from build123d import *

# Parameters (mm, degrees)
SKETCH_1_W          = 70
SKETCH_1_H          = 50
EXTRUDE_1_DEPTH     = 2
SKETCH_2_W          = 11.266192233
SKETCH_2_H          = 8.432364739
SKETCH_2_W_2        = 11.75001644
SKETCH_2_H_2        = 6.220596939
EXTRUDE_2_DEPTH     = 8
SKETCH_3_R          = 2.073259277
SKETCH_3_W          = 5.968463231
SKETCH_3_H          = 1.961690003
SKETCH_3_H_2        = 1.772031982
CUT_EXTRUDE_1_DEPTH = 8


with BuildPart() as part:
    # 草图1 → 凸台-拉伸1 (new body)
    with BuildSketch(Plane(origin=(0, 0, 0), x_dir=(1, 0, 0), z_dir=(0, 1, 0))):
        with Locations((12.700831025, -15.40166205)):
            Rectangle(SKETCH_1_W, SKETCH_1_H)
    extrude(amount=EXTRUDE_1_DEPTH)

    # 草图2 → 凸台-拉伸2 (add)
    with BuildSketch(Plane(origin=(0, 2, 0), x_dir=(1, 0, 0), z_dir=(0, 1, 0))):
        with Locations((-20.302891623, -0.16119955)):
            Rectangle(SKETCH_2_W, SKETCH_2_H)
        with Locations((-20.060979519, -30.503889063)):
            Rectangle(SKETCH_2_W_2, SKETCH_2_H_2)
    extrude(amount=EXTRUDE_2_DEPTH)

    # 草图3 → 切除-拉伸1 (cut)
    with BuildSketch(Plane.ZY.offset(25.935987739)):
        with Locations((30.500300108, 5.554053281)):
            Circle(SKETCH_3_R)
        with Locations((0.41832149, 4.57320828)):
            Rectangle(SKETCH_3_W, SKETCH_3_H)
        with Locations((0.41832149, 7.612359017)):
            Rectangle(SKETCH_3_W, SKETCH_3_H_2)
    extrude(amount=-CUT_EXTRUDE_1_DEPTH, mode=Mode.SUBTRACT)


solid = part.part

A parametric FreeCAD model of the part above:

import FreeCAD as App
import Part
import Sketcher

doc = App.newDocument("Part")
body = doc.addObject("PartDesign::Body", "Body")

sketch1 = body.newObject("Sketcher::SketchObject", "Sketch")
sketch1.AttachmentSupport = (doc.getObject("XZ_Plane"), [""])
sketch1.MapMode = "FlatFace"
sketch1.addGeometry(Part.LineSegment(App.Vector(-22, -10, 0), App.Vector(-22, 40, 0)), False)
sketch1.addGeometry(Part.LineSegment(App.Vector(-22, 40, 0), App.Vector(48, 40, 0)), False)
sketch1.addGeometry(Part.LineSegment(App.Vector(48, 40, 0), App.Vector(48, -10, 0)), False)
sketch1.addGeometry(Part.LineSegment(App.Vector(48, -10, 0), App.Vector(-22, -10, 0)), False)
sketch1.addConstraint(Sketcher.Constraint("Coincident", 0, 2, 1, 1))
sketch1.addConstraint(Sketcher.Constraint("Coincident", 1, 2, 2, 1))
sketch1.addConstraint(Sketcher.Constraint("Coincident", 2, 2, 3, 1))
sketch1.addConstraint(Sketcher.Constraint("Coincident", 3, 2, 0, 1))
sketch1.addConstraint(Sketcher.Constraint("Vertical", 0))
sketch1.addConstraint(Sketcher.Constraint("Horizontal", 1))
sketch1.addConstraint(Sketcher.Constraint("Vertical", 2))
sketch1.addConstraint(Sketcher.Constraint("Horizontal", 3))
sketch1.addConstraint(Sketcher.Constraint("DistanceX", 1, 1, 1, 2, 70.0))
sketch1.addConstraint(Sketcher.Constraint("DistanceY", 0, 1, 0, 2, 50.0))
sketch1.addConstraint(Sketcher.Constraint("DistanceX", 0, 2, -1, 1, 22.299169))
sketch1.addConstraint(Sketcher.Constraint("DistanceY", -1, 1, 0, 2, 40.401662))
pad1 = body.newObject("PartDesign::Pad", "Pad")
pad1.Profile = sketch1
pad1.Length = 2
pad1.Reversed = True

sketch2 = body.newObject("Sketcher::SketchObject", "Sketch001")
sketch2.AttachmentSupport = (doc.getObject("XZ_Plane"), [""])
sketch2.MapMode = "FlatFace"
sketch2.AttachmentOffset = App.Placement(App.Vector(0, 0, -2), App.Rotation())
sketch2.addGeometry(Part.LineSegment(App.Vector(-26, -4, 0), App.Vector(-26, 4, 0)), False)
sketch2.addGeometry(Part.LineSegment(App.Vector(-26, 4, 0), App.Vector(-15, 4, 0)), False)
sketch2.addGeometry(Part.LineSegment(App.Vector(-15, 4, 0), App.Vector(-15, -4, 0)), False)
sketch2.addGeometry(Part.LineSegment(App.Vector(-15, -4, 0), App.Vector(-26, -4, 0)), False)
sketch2.addGeometry(Part.LineSegment(App.Vector(-26, 27, 0), App.Vector(-26, 34, 0)), False)
sketch2.addGeometry(Part.LineSegment(App.Vector(-26, 34, 0), App.Vector(-14, 34, 0)), False)
sketch2.addGeometry(Part.LineSegment(App.Vector(-14, 34, 0), App.Vector(-14, 27, 0)), False)
sketch2.addGeometry(Part.LineSegment(App.Vector(-14, 27, 0), App.Vector(-26, 27, 0)), False)
sketch2.addConstraint(Sketcher.Constraint("Coincident", 0, 2, 1, 1))
sketch2.addConstraint(Sketcher.Constraint("Coincident", 1, 2, 2, 1))
sketch2.addConstraint(Sketcher.Constraint("Coincident", 2, 2, 3, 1))
sketch2.addConstraint(Sketcher.Constraint("Coincident", 3, 2, 0, 1))
sketch2.addConstraint(Sketcher.Constraint("Coincident", 4, 2, 5, 1))
sketch2.addConstraint(Sketcher.Constraint("Coincident", 5, 2, 6, 1))
sketch2.addConstraint(Sketcher.Constraint("Coincident", 6, 2, 7, 1))
sketch2.addConstraint(Sketcher.Constraint("Coincident", 7, 2, 4, 1))
sketch2.addConstraint(Sketcher.Constraint("Vertical", 0))
sketch2.addConstraint(Sketcher.Constraint("Horizontal", 1))
sketch2.addConstraint(Sketcher.Constraint("Vertical", 2))
sketch2.addConstraint(Sketcher.Constraint("Horizontal", 3))
sketch2.addConstraint(Sketcher.Constraint("Vertical", 4))
sketch2.addConstraint(Sketcher.Constraint("Horizontal", 5))
sketch2.addConstraint(Sketcher.Constraint("Vertical", 6))
sketch2.addConstraint(Sketcher.Constraint("Horizontal", 7))
sketch2.addConstraint(Sketcher.Constraint("Vertical", 3, 2, 4, 2))
sketch2.addConstraint(Sketcher.Constraint("DistanceX", 1, 1, 1, 2, 11.266192))
sketch2.addConstraint(Sketcher.Constraint("DistanceX", 5, 1, 5, 2, 11.750016))
sketch2.addConstraint(Sketcher.Constraint("DistanceY", 0, 1, 0, 2, 8.432365))
sketch2.addConstraint(Sketcher.Constraint("DistanceY", 4, 1, 4, 2, 6.220597))
sketch2.addConstraint(Sketcher.Constraint("DistanceY", -1, 1, 0, 2, 4.377382))
sketch2.addConstraint(Sketcher.Constraint("DistanceX", 5, 2, -1, 1, 14.185971))
sketch2.addConstraint(Sketcher.Constraint("DistanceY", -1, 1, 6, 2, 27.393591))
pad2 = body.newObject("PartDesign::Pad", "Pad001")
pad2.Profile = sketch2
pad2.Length = 8
pad2.Reversed = True

sketch3 = body.newObject("Sketcher::SketchObject", "Sketch002")
sketch3.AttachmentSupport = (doc.getObject("YZ_Plane"), [""])
sketch3.MapMode = "FlatFace"
sketch3.AttachmentOffset = App.Placement(App.Vector(0, 0, -25.935988), App.Rotation())
sketch3.addGeometry(Part.Circle(App.Vector(5.6, 30.5, 0), App.Vector(0, 0, 1), 2.1), False)
sketch3.addGeometry(Part.LineSegment(App.Vector(5.6, -2.6, 0), App.Vector(3.6, -2.6, 0)), False)
sketch3.addGeometry(Part.LineSegment(App.Vector(3.6, -2.6, 0), App.Vector(3.6, 3.4, 0)), False)
sketch3.addGeometry(Part.LineSegment(App.Vector(3.6, 3.4, 0), App.Vector(5.6, 3.4, 0)), False)
sketch3.addGeometry(Part.LineSegment(App.Vector(5.6, 3.4, 0), App.Vector(5.6, -2.6, 0)), False)
sketch3.addGeometry(Part.LineSegment(App.Vector(8.5, -2.6, 0), App.Vector(6.7, -2.6, 0)), False)
sketch3.addGeometry(Part.LineSegment(App.Vector(6.7, -2.6, 0), App.Vector(6.7, 3.4, 0)), False)
sketch3.addGeometry(Part.LineSegment(App.Vector(6.7, 3.4, 0), App.Vector(8.5, 3.4, 0)), False)
sketch3.addGeometry(Part.LineSegment(App.Vector(8.5, 3.4, 0), App.Vector(8.5, -2.6, 0)), False)
sketch3.addConstraint(Sketcher.Constraint("Coincident", 1, 2, 2, 1))
sketch3.addConstraint(Sketcher.Constraint("Coincident", 2, 2, 3, 1))
sketch3.addConstraint(Sketcher.Constraint("Coincident", 3, 2, 4, 1))
sketch3.addConstraint(Sketcher.Constraint("Coincident", 4, 2, 1, 1))
sketch3.addConstraint(Sketcher.Constraint("Coincident", 5, 2, 6, 1))
sketch3.addConstraint(Sketcher.Constraint("Coincident", 6, 2, 7, 1))
sketch3.addConstraint(Sketcher.Constraint("Coincident", 7, 2, 8, 1))
sketch3.addConstraint(Sketcher.Constraint("Coincident", 8, 2, 5, 1))
sketch3.addConstraint(Sketcher.Constraint("Horizontal", 1))
sketch3.addConstraint(Sketcher.Constraint("Vertical", 2))
sketch3.addConstraint(Sketcher.Constraint("Horizontal", 3))
sketch3.addConstraint(Sketcher.Constraint("Vertical", 4))
sketch3.addConstraint(Sketcher.Constraint("Horizontal", 5))
sketch3.addConstraint(Sketcher.Constraint("Vertical", 6))
sketch3.addConstraint(Sketcher.Constraint("Horizontal", 7))
sketch3.addConstraint(Sketcher.Constraint("Vertical", 8))
sketch3.addConstraint(Sketcher.Constraint("Horizontal", 4, 2, 5, 2))
sketch3.addConstraint(Sketcher.Constraint("Horizontal", 3, 2, 6, 2))
sketch3.addConstraint(Sketcher.Constraint("Vertical", 0, 3, 3, 2))
sketch3.addConstraint(Sketcher.Constraint("Diameter", 0, 4.146519))
sketch3.addConstraint(Sketcher.Constraint("DistanceX", 1, 2, 1, 1, 1.96169))
sketch3.addConstraint(Sketcher.Constraint("DistanceX", 5, 2, 5, 1, 1.772032))
sketch3.addConstraint(Sketcher.Constraint("DistanceY", -1, 1, 0, 3, 30.5003))
sketch3.addConstraint(Sketcher.Constraint("DistanceY", 2, 1, 2, 2, 5.968463))
sketch3.addConstraint(Sketcher.Constraint("DistanceY", 1, 2, -1, 1, 2.56591))
sketch3.addConstraint(Sketcher.Constraint("DistanceX", 4, 2, 5, 2, 1.17229))
sketch3.addConstraint(Sketcher.Constraint("DistanceX", -1, 1, 0, 3, 5.554053))
pocket1 = body.newObject("PartDesign::Pocket", "Pocket")
pocket1.Profile = sketch3
pocket1.Length = 8
pocket1.Reversed = True

doc.recompute()
